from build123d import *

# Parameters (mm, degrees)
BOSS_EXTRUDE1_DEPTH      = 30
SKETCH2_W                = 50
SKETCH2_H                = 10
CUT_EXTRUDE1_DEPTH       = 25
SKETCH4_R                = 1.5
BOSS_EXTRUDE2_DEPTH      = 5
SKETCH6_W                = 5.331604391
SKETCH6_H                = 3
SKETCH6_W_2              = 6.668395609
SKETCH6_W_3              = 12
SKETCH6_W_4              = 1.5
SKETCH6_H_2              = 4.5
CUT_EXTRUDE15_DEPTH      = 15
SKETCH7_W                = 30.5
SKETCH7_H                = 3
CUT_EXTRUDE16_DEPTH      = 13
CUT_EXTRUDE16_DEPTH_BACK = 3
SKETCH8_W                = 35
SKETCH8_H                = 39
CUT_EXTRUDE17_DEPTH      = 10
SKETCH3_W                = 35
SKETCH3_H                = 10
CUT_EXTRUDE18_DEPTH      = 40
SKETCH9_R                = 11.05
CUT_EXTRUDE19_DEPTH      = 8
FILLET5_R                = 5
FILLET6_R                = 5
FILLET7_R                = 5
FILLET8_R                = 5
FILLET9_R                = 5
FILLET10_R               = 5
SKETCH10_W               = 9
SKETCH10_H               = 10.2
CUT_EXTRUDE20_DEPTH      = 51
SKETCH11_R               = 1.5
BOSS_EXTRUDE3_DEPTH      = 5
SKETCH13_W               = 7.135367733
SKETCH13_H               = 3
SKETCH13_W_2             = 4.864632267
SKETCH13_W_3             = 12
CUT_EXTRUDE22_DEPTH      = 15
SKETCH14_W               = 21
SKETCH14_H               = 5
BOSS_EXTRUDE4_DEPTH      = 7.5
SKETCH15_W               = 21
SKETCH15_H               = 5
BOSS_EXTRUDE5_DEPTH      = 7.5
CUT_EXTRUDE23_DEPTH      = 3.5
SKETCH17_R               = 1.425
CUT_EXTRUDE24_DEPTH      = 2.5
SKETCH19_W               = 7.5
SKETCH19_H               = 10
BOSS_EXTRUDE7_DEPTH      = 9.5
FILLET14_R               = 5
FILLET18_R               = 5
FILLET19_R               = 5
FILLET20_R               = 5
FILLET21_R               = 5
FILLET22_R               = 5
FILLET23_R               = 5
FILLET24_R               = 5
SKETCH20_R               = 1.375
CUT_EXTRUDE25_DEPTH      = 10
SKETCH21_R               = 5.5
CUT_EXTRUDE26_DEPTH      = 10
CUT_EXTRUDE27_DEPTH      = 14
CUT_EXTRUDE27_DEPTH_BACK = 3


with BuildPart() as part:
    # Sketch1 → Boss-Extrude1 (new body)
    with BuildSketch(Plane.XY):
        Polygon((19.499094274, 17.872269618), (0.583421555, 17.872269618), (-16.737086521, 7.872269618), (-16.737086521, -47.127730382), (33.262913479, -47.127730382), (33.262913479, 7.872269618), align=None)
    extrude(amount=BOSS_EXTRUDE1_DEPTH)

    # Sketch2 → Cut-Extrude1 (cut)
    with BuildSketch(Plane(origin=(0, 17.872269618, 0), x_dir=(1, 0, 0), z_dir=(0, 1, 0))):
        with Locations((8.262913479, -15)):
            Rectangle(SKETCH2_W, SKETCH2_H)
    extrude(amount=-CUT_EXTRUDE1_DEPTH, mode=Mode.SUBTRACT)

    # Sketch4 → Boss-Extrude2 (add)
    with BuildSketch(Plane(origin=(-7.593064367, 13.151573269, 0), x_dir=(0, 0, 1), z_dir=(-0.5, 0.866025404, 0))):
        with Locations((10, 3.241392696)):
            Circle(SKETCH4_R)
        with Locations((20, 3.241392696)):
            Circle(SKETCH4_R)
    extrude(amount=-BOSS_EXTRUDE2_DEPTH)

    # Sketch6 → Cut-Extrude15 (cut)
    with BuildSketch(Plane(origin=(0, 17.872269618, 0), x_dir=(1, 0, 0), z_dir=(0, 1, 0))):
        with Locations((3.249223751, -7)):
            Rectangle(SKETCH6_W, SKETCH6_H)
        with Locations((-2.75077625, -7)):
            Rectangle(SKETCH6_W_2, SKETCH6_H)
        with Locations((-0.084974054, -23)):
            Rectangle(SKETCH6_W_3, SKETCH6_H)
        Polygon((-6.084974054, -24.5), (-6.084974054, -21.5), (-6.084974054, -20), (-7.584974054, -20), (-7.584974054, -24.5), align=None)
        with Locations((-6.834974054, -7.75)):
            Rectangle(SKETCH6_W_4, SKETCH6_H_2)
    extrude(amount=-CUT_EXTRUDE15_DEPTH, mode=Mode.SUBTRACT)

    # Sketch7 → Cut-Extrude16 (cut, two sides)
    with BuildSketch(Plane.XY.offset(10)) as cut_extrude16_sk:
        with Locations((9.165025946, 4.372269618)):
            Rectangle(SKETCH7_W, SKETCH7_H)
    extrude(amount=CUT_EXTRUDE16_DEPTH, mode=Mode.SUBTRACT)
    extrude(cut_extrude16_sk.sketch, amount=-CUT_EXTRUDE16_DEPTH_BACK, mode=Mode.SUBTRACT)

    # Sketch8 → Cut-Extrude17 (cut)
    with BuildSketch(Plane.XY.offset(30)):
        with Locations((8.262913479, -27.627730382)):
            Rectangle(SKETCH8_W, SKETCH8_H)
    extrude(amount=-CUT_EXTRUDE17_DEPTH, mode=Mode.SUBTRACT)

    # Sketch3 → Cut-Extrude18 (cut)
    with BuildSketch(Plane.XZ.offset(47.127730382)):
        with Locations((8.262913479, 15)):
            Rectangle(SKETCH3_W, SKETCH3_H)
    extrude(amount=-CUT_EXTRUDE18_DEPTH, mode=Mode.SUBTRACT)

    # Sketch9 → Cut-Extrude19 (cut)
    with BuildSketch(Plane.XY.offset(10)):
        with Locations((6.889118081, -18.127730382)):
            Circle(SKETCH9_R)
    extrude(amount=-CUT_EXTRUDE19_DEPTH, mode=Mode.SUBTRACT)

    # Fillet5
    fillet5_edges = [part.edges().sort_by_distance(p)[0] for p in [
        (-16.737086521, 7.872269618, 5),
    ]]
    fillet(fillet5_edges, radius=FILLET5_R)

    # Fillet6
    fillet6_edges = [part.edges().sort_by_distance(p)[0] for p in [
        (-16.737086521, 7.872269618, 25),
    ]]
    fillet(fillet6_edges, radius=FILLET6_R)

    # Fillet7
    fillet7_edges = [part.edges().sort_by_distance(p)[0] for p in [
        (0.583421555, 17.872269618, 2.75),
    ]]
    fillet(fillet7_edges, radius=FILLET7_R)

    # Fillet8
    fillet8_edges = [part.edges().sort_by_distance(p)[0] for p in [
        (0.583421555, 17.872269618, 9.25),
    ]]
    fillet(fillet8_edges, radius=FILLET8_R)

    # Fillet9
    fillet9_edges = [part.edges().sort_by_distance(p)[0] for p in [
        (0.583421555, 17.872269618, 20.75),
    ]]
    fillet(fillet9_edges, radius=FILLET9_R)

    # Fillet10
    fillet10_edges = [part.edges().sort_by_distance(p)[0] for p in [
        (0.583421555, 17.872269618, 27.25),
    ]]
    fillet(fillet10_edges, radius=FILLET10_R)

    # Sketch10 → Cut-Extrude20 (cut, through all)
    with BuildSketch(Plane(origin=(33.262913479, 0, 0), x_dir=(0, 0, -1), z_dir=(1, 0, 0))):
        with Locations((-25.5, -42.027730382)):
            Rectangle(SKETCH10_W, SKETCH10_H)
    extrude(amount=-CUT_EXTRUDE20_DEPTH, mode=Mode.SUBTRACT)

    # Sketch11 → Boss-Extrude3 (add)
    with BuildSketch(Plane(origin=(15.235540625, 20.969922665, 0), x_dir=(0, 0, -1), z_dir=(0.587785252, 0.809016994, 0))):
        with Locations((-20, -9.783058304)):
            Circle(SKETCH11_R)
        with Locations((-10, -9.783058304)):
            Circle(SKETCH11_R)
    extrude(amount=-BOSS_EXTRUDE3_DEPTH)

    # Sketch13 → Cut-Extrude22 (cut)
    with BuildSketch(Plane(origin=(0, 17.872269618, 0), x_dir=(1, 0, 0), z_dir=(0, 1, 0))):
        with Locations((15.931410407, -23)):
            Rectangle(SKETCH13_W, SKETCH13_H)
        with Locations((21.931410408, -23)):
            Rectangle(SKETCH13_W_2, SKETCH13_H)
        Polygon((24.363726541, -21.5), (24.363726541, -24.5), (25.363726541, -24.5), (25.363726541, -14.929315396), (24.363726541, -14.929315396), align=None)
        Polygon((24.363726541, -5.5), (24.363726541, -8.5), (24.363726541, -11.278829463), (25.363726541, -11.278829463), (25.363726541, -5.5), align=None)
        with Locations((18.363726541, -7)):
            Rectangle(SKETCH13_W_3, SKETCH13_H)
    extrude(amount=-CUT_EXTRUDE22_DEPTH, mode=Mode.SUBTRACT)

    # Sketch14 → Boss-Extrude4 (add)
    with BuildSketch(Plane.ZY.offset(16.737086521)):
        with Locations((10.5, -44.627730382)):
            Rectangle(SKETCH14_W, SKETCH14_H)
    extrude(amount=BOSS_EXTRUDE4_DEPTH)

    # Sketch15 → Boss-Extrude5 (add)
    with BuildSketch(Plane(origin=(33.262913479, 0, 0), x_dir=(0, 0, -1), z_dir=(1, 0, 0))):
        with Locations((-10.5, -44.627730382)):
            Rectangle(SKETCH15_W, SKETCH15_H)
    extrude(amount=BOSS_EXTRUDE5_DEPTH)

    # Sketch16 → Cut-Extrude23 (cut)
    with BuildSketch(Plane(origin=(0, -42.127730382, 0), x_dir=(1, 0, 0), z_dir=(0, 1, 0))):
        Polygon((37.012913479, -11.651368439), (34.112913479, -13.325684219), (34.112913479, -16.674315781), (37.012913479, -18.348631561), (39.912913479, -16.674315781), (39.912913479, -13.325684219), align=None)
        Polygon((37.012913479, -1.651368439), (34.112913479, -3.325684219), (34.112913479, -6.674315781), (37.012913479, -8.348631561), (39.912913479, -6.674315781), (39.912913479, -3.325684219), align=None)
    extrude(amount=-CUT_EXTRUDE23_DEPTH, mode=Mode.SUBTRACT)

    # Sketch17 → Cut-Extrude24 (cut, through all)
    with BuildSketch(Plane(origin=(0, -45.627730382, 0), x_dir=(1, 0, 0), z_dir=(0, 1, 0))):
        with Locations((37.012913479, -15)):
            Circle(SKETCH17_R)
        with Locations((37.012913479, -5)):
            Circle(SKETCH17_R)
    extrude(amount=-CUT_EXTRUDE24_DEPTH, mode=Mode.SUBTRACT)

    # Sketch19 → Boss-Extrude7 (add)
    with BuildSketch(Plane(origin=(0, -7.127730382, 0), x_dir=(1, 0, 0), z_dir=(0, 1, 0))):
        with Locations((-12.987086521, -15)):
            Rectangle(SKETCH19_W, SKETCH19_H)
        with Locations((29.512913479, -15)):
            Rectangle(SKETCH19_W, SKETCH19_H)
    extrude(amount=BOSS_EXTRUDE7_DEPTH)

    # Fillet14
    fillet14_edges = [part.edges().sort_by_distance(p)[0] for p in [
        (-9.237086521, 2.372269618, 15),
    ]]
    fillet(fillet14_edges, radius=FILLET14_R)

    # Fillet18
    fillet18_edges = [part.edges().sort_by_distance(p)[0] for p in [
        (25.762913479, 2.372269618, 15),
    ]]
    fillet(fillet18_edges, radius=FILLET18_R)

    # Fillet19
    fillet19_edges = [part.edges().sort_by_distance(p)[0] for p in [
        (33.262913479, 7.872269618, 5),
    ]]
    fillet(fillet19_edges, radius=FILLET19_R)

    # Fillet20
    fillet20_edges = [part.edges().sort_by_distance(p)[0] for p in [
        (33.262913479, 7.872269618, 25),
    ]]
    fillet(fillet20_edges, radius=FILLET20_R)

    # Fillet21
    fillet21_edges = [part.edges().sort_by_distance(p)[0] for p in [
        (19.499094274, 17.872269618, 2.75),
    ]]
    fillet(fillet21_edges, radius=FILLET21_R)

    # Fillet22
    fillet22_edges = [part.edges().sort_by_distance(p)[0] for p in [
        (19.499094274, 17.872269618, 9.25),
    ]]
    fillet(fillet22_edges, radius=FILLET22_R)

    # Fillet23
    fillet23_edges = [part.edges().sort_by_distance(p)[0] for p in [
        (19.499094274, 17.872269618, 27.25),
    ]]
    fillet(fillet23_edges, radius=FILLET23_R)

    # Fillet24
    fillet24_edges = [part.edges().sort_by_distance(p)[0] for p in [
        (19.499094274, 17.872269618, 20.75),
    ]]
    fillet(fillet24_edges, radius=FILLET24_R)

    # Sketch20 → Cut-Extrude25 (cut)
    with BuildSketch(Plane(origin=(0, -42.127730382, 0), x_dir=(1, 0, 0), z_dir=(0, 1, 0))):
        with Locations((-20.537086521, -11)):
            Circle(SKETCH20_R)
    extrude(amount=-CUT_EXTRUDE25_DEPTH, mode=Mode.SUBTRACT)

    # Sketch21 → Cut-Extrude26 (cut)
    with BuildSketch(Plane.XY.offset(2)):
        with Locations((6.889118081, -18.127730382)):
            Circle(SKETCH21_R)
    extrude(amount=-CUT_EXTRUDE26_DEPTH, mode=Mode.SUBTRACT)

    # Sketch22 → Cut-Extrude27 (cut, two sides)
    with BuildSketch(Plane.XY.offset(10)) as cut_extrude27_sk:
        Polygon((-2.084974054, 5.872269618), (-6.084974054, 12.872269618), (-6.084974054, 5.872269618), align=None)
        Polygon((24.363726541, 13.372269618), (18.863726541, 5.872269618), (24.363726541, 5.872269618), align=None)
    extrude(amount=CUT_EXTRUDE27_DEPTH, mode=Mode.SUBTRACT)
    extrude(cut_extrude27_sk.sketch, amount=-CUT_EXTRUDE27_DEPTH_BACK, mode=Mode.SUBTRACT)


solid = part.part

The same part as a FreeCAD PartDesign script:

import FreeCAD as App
import Part
import Sketcher
from FreeCAD import Vector
Q = App.Units.Quantity


def edges_at(feature, points):
    """Names of the edges that pass closest to the given points."""
    edges = feature.Shape.Edges
    near = lambda p: min(range(len(edges)), key=lambda i: edges[i].distToShape(Part.Vertex(*p))[0])
    return sorted({f"Edge{near(p) + 1}" for p in points})

doc = App.newDocument("Part")
body = doc.addObject("PartDesign::Body", "Body")

# Sketch on XY plane
sketch1 = body.newObject("Sketcher::SketchObject", "Sketch")
sketch1.AttachmentSupport = (doc.getObject("XY_Plane"), [""])
sketch1.MapMode = "FlatFace"
sketch1.addGeometry(Part.LineSegment(Vector(19, 18, 0), Vector(1, 18, 0)), False)
sketch1.addGeometry(Part.LineSegment(Vector(1, 18, 0), Vector(-17, 8, 0)), False)
sketch1.addGeometry(Part.LineSegment(Vector(-17, 8, 0), Vector(-17, -47, 0)), False)
sketch1.addGeometry(Part.LineSegment(Vector(-17, -47, 0), Vector(33, -47, 0)), False)
sketch1.addGeometry(Part.LineSegment(Vector(33, -47, 0), Vector(33, 8, 0)), False)
sketch1.addGeometry(Part.LineSegment(Vector(33, 8, 0), Vector(19, 18, 0)), False)
sketch1.addConstraint(Sketcher.Constraint("Coincident", 0, 2, 1, 1))
sketch1.addConstraint(Sketcher.Constraint("Coincident", 1, 2, 2, 1))
sketch1.addConstraint(Sketcher.Constraint("Coincident", 2, 2, 3, 1))
sketch1.addConstraint(Sketcher.Constraint("Coincident", 3, 2, 4, 1))
sketch1.addConstraint(Sketcher.Constraint("Coincident", 4, 2, 5, 1))
sketch1.addConstraint(Sketcher.Constraint("Coincident", 5, 2, 0, 1))
sketch1.addConstraint(Sketcher.Constraint("Horizontal", 0))
sketch1.addConstraint(Sketcher.Constraint("Vertical", 2))
sketch1.addConstraint(Sketcher.Constraint("Horizontal", 3))
sketch1.addConstraint(Sketcher.Constraint("Vertical", 4))
sketch1.addConstraint(Sketcher.Constraint("Horizontal", 1, 2, 4, 2))
sketch1.addConstraint(Sketcher.Constraint("DistanceX", 3, 1, 3, 2, Q("50 mm")))
sketch1.addConstraint(Sketcher.Constraint("DistanceY", 2, 2, 2, 1, Q("55 mm")))
sketch1.addConstraint(Sketcher.Constraint("Angle", 1, Q("-150 deg")))
sketch1.addConstraint(Sketcher.Constraint("Angle", 5, Q("144 deg")))
sketch1.addConstraint(Sketcher.Constraint("Distance", 1, Q("20 mm")))
sketch1.addConstraint(Sketcher.Constraint("DistanceX", -1, 1, 0, 2, Q("0.583422 mm")))
sketch1.addConstraint(Sketcher.Constraint("DistanceY", -1, 1, 0, 2, Q("17.87227 mm")))
pad1 = body.newObject("PartDesign::Pad", "Pad")
pad1.Profile = sketch1
pad1.Length = 30

# Sketch on XZ plane
sketch2 = body.newObject("Sketcher::SketchObject", "Sketch001")
sketch2.AttachmentSupport = (doc.getObject("XZ_Plane"), [""])
sketch2.MapMode = "FlatFace"
sketch2.AttachmentOffset = App.Placement(Vector(0, 0, -17.87227), App.Rotation())
sketch2.addGeometry(Part.LineSegment(Vector(-17, 10, 0), Vector(-17, 20, 0)), False)
sketch2.addGeometry(Part.LineSegment(Vector(-17, 20, 0), Vector(33, 20, 0)), False)
sketch2.addGeometry(Part.LineSegment(Vector(33, 20, 0), Vector(33, 10, 0)), False)
sketch2.addGeometry(Part.LineSegment(Vector(33, 10, 0), Vector(-17, 10, 0)), False)
sketch2.addConstraint(Sketcher.Constraint("Coincident", 0, 2, 1, 1))
sketch2.addConstraint(Sketcher.Constraint("Coincident", 1, 2, 2, 1))
sketch2.addConstraint(Sketcher.Constraint("Coincident", 2, 2, 3, 1))
sketch2.addConstraint(Sketcher.Constraint("Coincident", 3, 2, 0, 1))
sketch2.addConstraint(Sketcher.Constraint("Vertical", 0))
sketch2.addConstraint(Sketcher.Constraint("Horizontal", 1))
sketch2.addConstraint(Sketcher.Constraint("Vertical", 2))
sketch2.addConstraint(Sketcher.Constraint("Horizontal", 3))
sketch2.addConstraint(Sketcher.Constraint("DistanceX", 1, 1, 1, 2, Q("50 mm")))
sketch2.addConstraint(Sketcher.Constraint("DistanceY", 0, 1, 0, 2, Q("10 mm")))
sketch2.addConstraint(Sketcher.Constraint("DistanceY", -1, 1, 0, 2, Q("20 mm")))
sketch2.addConstraint(Sketcher.Constraint("DistanceX", 0, 2, -1, 1, Q("16.737087 mm")))
pocket1 = body.newObject("PartDesign::Pocket", "Pocket")
pocket1.Profile = sketch2
pocket1.Length = 25
pocket1.Reversed = True

# Sketch on an angled plane
sketch3 = body.newObject("Sketcher::SketchObject", "Sketch002")
sketch3.Placement = App.Placement(Vector(-7.593064, 13.151573, 0), App.Rotation(Vector(0, 0, 1), Vector(0.866025404, 0.5, 0), Vector(-0.5, 0.866025404, 0), "ZXY"))
sketch3.addGeometry(Part.Circle(Vector(10, 3.2, 0), Vector(0, 0, 1), 1.5), False)
sketch3.addGeometry(Part.Circle(Vector(20, 3.2, 0), Vector(0, 0, 1), 1.5), False)
sketch3.addConstraint(Sketcher.Constraint("Equal", 0, 1))
sketch3.addConstraint(Sketcher.Constraint("Horizontal", 0, 3, 1, 3))
sketch3.addConstraint(Sketcher.Constraint("Diameter", 0, Q("3 mm")))
sketch3.addConstraint(Sketcher.Constraint("DistanceX", -1, 1, 0, 3, Q("10 mm")))
sketch3.addConstraint(Sketcher.Constraint("DistanceX", -1, 1, 1, 3, Q("20 mm")))
sketch3.addConstraint(Sketcher.Constraint("DistanceY", -1, 1, 0, 3, Q("3.241393 mm")))
pad2 = body.newObject("PartDesign::Pad", "Pad001")
pad2.Profile = sketch3
pad2.Length = 5
pad2.Reversed = True

# Sketch on XZ plane
sketch4 = body.newObject("Sketcher::SketchObject", "Sketch003")
sketch4.AttachmentSupport = (doc.getObject("XZ_Plane"), [""])
sketch4.MapMode = "FlatFace"
sketch4.AttachmentOffset = App.Placement(Vector(0, 0, -17.87227), App.Rotation())
sketch4.addGeometry(Part.LineSegment(Vector(5.9, 8.5, 0), Vector(5.9, 5.5, 0)), False)
sketch4.addGeometry(Part.LineSegment(Vector(5.9, 5.5, 0), Vector(-7.6, 5.5, 0)), False)
sketch4.addGeometry(Part.LineSegment(Vector(-7.6, 5.5, 0), Vector(-7.6, 10, 0)), False)
sketch4.addGeometry(Part.LineSegment(Vector(-7.6, 10, 0), Vector(-6.1, 10, 0)), False)
sketch4.addGeometry(Part.LineSegment(Vector(-6.1, 10, 0), Vector(-6.1, 8.5, 0)), False)
sketch4.addGeometry(Part.LineSegment(Vector(-6.1, 8.5, 0), Vector(5.9, 8.5, 0)), False)
sketch4.addGeometry(Part.LineSegment(Vector(5.9, 24.5, 0), Vector(5.9, 21.5, 0)), False)
sketch4.addGeometry(Part.LineSegment(Vector(5.9, 21.5, 0), Vector(-6.1, 21.5, 0)), False)
sketch4.addGeometry(Part.LineSegment(Vector(-6.1, 21.5, 0), Vector(-6.1, 20, 0)), False)
sketch4.addGeometry(Part.LineSegment(Vector(-6.1, 20, 0), Vector(-7.6, 20, 0)), False)
sketch4.addGeometry(Part.LineSegment(Vector(-7.6, 20, 0), Vector(-7.6, 24.5, 0)), False)
sketch4.addGeometry(Part.LineSegment(Vector(-7.6, 24.5, 0), Vector(5.9, 24.5, 0)), False)
sketch4.addConstraint(Sketcher.Constraint("Coincident", 0, 2, 1, 1))
sketch4.addConstraint(Sketcher.Constraint("Coincident", 1, 2, 2, 1))
sketch4.addConstraint(Sketcher.Constraint("Coincident", 2, 2, 3, 1))
sketch4.addConstraint(Sketcher.Constraint("Coincident", 3, 2, 4, 1))
sketch4.addConstraint(Sketcher.Constraint("Coincident", 4, 2, 5, 1))
sketch4.addConstraint(Sketcher.Constraint("Coincident", 5, 2, 0, 1))
sketch4.addConstraint(Sketcher.Constraint("Coincident", 6, 2, 7, 1))
sketch4.addConstraint(Sketcher.Constraint("Coincident", 7, 2, 8, 1))
sketch4.addConstraint(Sketcher.Constraint("Coincident", 8, 2, 9, 1))
sketch4.addConstraint(Sketcher.Constraint("Coincident", 9, 2, 10, 1))
sketch4.addConstraint(Sketcher.Constraint("Coincident", 10, 2, 11, 1))
sketch4.addConstraint(Sketcher.Constraint("Coincident", 11, 2, 6, 1))
sketch4.addConstraint(Sketcher.Constraint("Vertical", 0))
sketch4.addConstraint(Sketcher.Constraint("Horizontal", 1))
sketch4.addConstraint(Sketcher.Constraint("Vertical", 2))
sketch4.addConstraint(Sketcher.Constraint("Horizontal", 3))
sketch4.addConstraint(Sketcher.Constraint("Vertical", 4))
sketch4.addConstraint(Sketcher.Constraint("Horizontal", 5))
sketch4.addConstraint(Sketcher.Constraint("Vertical", 6))
sketch4.addConstraint(Sketcher.Constraint("Horizontal", 7))
sketch4.addConstraint(Sketcher.Constraint("Vertical", 8))
sketch4.addConstraint(Sketcher.Constraint("Horizontal", 9))
sketch4.addConstraint(Sketcher.Constraint("Vertical", 10))
sketch4.addConstraint(Sketcher.Constraint("Horizontal", 11))
sketch4.addConstraint(Sketcher.Constraint("Vertical", 5, 2, 6, 2))
sketch4.addConstraint(Sketcher.Constraint("Vertical", 4, 2, 7, 2))
sketch4.addConstraint(Sketcher.Constraint("Vertical", 2, 2, 9, 2))
sketch4.addConstraint(Sketcher.Constraint("Equal", 9, 4))
sketch4.addConstraint(Sketcher.Constraint("Equal", 0, 6))
sketch4.addConstraint(Sketcher.Constraint("Equal", 4, 8))
sketch4.addConstraint(Sketcher.Constraint("DistanceX", 5, 1, 5, 2, Q("12 mm")))
sketch4.addConstraint(Sketcher.Constraint("DistanceY", 0, 2, 0, 1, Q("3 mm")))
sketch4.addConstraint(Sketcher.Constraint("DistanceX", 1, 2, 1, 1, Q("13.5 mm")))
sketch4.addConstraint(Sketcher.Constraint("DistanceY", -1, 1, 2, 2, Q("10 mm")))
sketch4.addConstraint(Sketcher.Constraint("DistanceY", -1, 1, 8, 2, Q("20 mm")))
sketch4.addConstraint(Sketcher.Constraint("DistanceX", -1, 1, 0, 2, Q("5.915026 mm")))
pocket2 = body.newObject("PartDesign::Pocket", "Pocket001")
pocket2.Profile = sketch4
pocket2.Length = 15
pocket2.Reversed = True

# Sketch on XY plane
sketch5 = body.newObject("Sketcher::SketchObject", "Sketch004")
sketch5.AttachmentSupport = (doc.getObject("XY_Plane"), [""])
sketch5.MapMode = "FlatFace"
sketch5.AttachmentOffset = App.Placement(Vector(0, 0, 10), App.Rotation())
sketch5.addGeometry(Part.LineSegment(Vector(-6.1, 5.9, 0), Vector(-6.1, 2.9, 0)), False)
sketch5.addGeometry(Part.LineSegment(Vector(-6.1, 2.9, 0), Vector(24.4, 2.9, 0)), False)
sketch5.addGeometry(Part.LineSegment(Vector(24.4, 2.9, 0), Vector(24.4, 5.9, 0)), False)
sketch5.addGeometry(Part.LineSegment(Vector(24.4, 5.9, 0), Vector(-6.1, 5.9, 0)), False)
sketch5.addConstraint(Sketcher.Constraint("Coincident", 0, 2, 1, 1))
sketch5.addConstraint(Sketcher.Constraint("Coincident", 1, 2, 2, 1))
sketch5.addConstraint(Sketcher.Constraint("Coincident", 2, 2, 3, 1))
sketch5.addConstraint(Sketcher.Constraint("Coincident", 3, 2, 0, 1))
sketch5.addConstraint(Sketcher.Constraint("Vertical", 0))
sketch5.addConstraint(Sketcher.Constraint("Horizontal", 1))
sketch5.addConstraint(Sketcher.Constraint("Vertical", 2))
sketch5.addConstraint(Sketcher.Constraint("Horizontal", 3))
sketch5.addConstraint(Sketcher.Constraint("DistanceY", 0, 2, 0, 1, Q("3 mm")))
sketch5.addConstraint(Sketcher.Constraint("DistanceX", 1, 1, 1, 2, Q("30.5 mm")))
sketch5.addConstraint(Sketcher.Constraint("DistanceY", -1, 1, 0, 2, Q("2.87227 mm")))
sketch5.addConstraint(Sketcher.Constraint("DistanceX", 0, 2, -1, 1, Q("6.084974 mm")))
pocket3 = body.newObject("PartDesign::Pocket", "Pocket002")
pocket3.Profile = sketch5
pocket3.Type = "TwoLengths"
pocket3.Length = 13
pocket3.Length2 = 3
pocket3.Reversed = True

# Sketch on XY plane
sketch6 = body.newObject("Sketcher::SketchObject", "Sketch005")
sketch6.AttachmentSupport = (doc.getObject("XY_Plane"), [""])
sketch6.MapMode = "FlatFace"
sketch6.AttachmentOffset = App.Placement(Vector(0, 0, 30), App.Rotation())
sketch6.addGeometry(Part.LineSegment(Vector(-9, -8, 0), Vector(-9, -47, 0)), False)
sketch6.addGeometry(Part.LineSegment(Vector(-9, -47, 0), Vector(26, -47, 0)), False)
sketch6.addGeometry(Part.LineSegment(Vector(26, -47, 0), Vector(26, -8, 0)), False)
sketch6.addGeometry(Part.LineSegment(Vector(26, -8, 0), Vector(-9, -8, 0)), False)
sketch6.addConstraint(Sketcher.Constraint("Coincident", 0, 2, 1, 1))
sketch6.addConstraint(Sketcher.Constraint("Coincident", 1, 2, 2, 1))
sketch6.addConstraint(Sketcher.Constraint("Coincident", 2, 2, 3, 1))
sketch6.addConstraint(Sketcher.Constraint("Coincident", 3, 2, 0, 1))
sketch6.addConstraint(Sketcher.Constraint("Vertical", 0))
sketch6.addConstraint(Sketcher.Constraint("Horizontal", 1))
sketch6.addConstraint(Sketcher.Constraint("Vertical", 2))
sketch6.addConstraint(Sketcher.Constraint("Horizontal", 3))
sketch6.addConstraint(Sketcher.Constraint("DistanceX", 1, 1, 1, 2, Q("35 mm")))
sketch6.addConstraint(Sketcher.Constraint("DistanceY", 0, 2, 0, 1, Q("39 mm")))
sketch6.addConstraint(Sketcher.Constraint("DistanceY", 0, 2, -1, 1, Q("47.12773 mm")))
sketch6.addConstraint(Sketcher.Constraint("DistanceX", 0, 2, -1, 1, Q("9.237087 mm")))
pocket4 = body.newObject("PartDesign::Pocket", "Pocket003")
pocket4.Profile = sketch6
pocket4.Length = 10

# Sketch on XZ plane
sketch7 = body.newObject("Sketcher::SketchObject", "Sketch006")
sketch7.AttachmentSupport = (doc.getObject("XZ_Plane"), [""])
sketch7.MapMode = "FlatFace"
sketch7.AttachmentOffset = App.Placement(Vector(0, 0, 47.12773), App.Rotation())
sketch7.addGeometry(Part.LineSegment(Vector(-9, 20, 0), Vector(-9, 10, 0)), False)
sketch7.addGeometry(Part.LineSegment(Vector(-9, 10, 0), Vector(26, 10, 0)), False)
sketch7.addGeometry(Part.LineSegment(Vector(26, 10, 0), Vector(26, 20, 0)), False)
sketch7.addGeometry(Part.LineSegment(Vector(26, 20, 0), Vector(-9, 20, 0)), False)
sketch7.addConstraint(Sketcher.Constraint("Coincident", 0, 2, 1, 1))
sketch7.addConstraint(Sketcher.Constraint("Coincident", 1, 2, 2, 1))
sketch7.addConstraint(Sketcher.Constraint("Coincident", 2, 2, 3, 1))
sketch7.addConstraint(Sketcher.Constraint("Coincident", 3, 2, 0, 1))
sketch7.addConstraint(Sketcher.Constraint("Vertical", 0))
sketch7.addConstraint(Sketcher.Constraint("Horizontal", 1))
sketch7.addConstraint(Sketcher.Constraint("Vertical", 2))
sketch7.addConstraint(Sketcher.Constraint("Horizontal", 3))
sketch7.addConstraint(Sketcher.Constraint("DistanceX", 1, 1, 1, 2, Q("35 mm")))
sketch7.addConstraint(Sketcher.Constraint("DistanceY", 0, 2, 0, 1, Q("10 mm")))
sketch7.addConstraint(Sketcher.Constraint("DistanceY", -1, 1, 0, 2, Q("10 mm")))
sketch7.addConstraint(Sketcher.Constraint("DistanceX", 0, 2, -1, 1, Q("9.237087 mm")))
pocket5 = body.newObject("PartDesign::Pocket", "Pocket004")
pocket5.Profile = sketch7
pocket5.Length = 40

# Sketch on XY plane
sketch8 = body.newObject("Sketcher::SketchObject", "Sketch007")
sketch8.AttachmentSupport = (doc.getObject("XY_Plane"), [""])
sketch8.MapMode = "FlatFace"
sketch8.AttachmentOffset = App.Placement(Vector(0, 0, 10), App.Rotation())
sketch8.addGeometry(Part.Circle(Vector(7, -18, 0), Vector(0, 0, 1), 11), False)
sketch8.addConstraint(Sketcher.Constraint("Diameter", 0, Q("22.1 mm")))
sketch8.addConstraint(Sketcher.Constraint("DistanceX", -1, 1, 0, 3, Q("6.889118 mm")))
sketch8.addConstraint(Sketcher.Constraint("DistanceY", 0, 3, -1, 1, Q("18.12773 mm")))
pocket6 = body.newObject("PartDesign::Pocket", "Pocket005")
pocket6.Profile = sketch8
pocket6.Length = 8
doc.recompute()

fillet = body.newObject("PartDesign::Fillet", "Fillet")
fillet.Base = (pocket6, edges_at(pocket6, [(-16.737, 7.872, 5)]))
fillet.Radius = 5
doc.recompute()

fillet2 = body.newObject("PartDesign::Fillet", "Fillet001")
fillet2.Base = (fillet, edges_at(fillet, [(-16.737, 7.872, 25)]))
fillet2.Radius = 5
doc.recompute()

fillet3 = body.newObject("PartDesign::Fillet", "Fillet002")
fillet3.Base = (fillet2, edges_at(fillet2, [(0.583, 17.872, 2.75)]))
fillet3.Radius = 5
doc.recompute()

fillet4 = body.newObject("PartDesign::Fillet", "Fillet003")
fillet4.Base = (fillet3, edges_at(fillet3, [(0.583, 17.872, 9.25)]))
fillet4.Radius = 5
doc.recompute()

fillet5 = body.newObject("PartDesign::Fillet", "Fillet004")
fillet5.Base = (fillet4, edges_at(fillet4, [(0.583, 17.872, 20.75)]))
fillet5.Radius = 5
doc.recompute()

fillet6 = body.newObject("PartDesign::Fillet", "Fillet005")
fillet6.Base = (fillet5, edges_at(fillet5, [(0.583, 17.872, 27.25)]))
fillet6.Radius = 5

# Sketch on YZ plane
sketch9 = body.newObject("Sketcher::SketchObject", "Sketch008")
sketch9.AttachmentSupport = (doc.getObject("YZ_Plane"), [""])
sketch9.MapMode = "FlatFace"
sketch9.AttachmentOffset = App.Placement(Vector(0, 0, 33.262913), App.Rotation())
sketch9.addGeometry(Part.LineSegment(Vector(-37, 30, 0), Vector(-47, 30, 0)), False)
sketch9.addGeometry(Part.LineSegment(Vector(-47, 30, 0), Vector(-47, 21, 0)), False)
sketch9.addGeometry(Part.LineSegment(Vector(-47, 21, 0), Vector(-37, 21, 0)), False)
sketch9.addGeometry(Part.LineSegment(Vector(-37, 21, 0), Vector(-37, 30, 0)), False)
sketch9.addConstraint(Sketcher.Constraint("Coincident", 0, 2, 1, 1))
sketch9.addConstraint(Sketcher.Constraint("Coincident", 1, 2, 2, 1))
sketch9.addConstraint(Sketcher.Constraint("Coincident", 2, 2, 3, 1))
sketch9.addConstraint(Sketcher.Constraint("Coincident", 3, 2, 0, 1))
sketch9.addConstraint(Sketcher.Constraint("Horizontal", 0))
sketch9.addConstraint(Sketcher.Constraint("Vertical", 1))
sketch9.addConstraint(Sketcher.Constraint("Horizontal", 2))
sketch9.addConstraint(Sketcher.Constraint("Vertical", 3))
sketch9.addConstraint(Sketcher.Constraint("DistanceY", 1, 2, 1, 1, Q("9 mm")))
sketch9.addConstraint(Sketcher.Constraint("DistanceX", 0, 2, 0, 1, Q("10.2 mm")))
sketch9.addConstraint(Sketcher.Constraint("DistanceY", -1, 1, 0, 2, Q("30 mm")))
sketch9.addConstraint(Sketcher.Constraint("DistanceX", 0, 2, -1, 1, Q("47.12773 mm")))
pocket7 = body.newObject("PartDesign::Pocket", "Pocket006")
pocket7.Profile = sketch9
pocket7.Type = "ThroughAll"

# Sketch on an angled plane
sketch10 = body.newObject("Sketcher::SketchObject", "Sketch009")
sketch10.Placement = App.Placement(Vector(15.235541, 20.969923, 0), App.Rotation(Vector(0, 0, -1), Vector(-0.809016994, 0.587785252, 0), Vector(0.587785252, 0.809016994, 0), "ZXY"))
sketch10.addGeometry(Part.Circle(Vector(-20, -9.8, 0), Vector(0, 0, 1), 1.5), False)
sketch10.addGeometry(Part.Circle(Vector(-10, -9.8, 0), Vector(0, 0, 1), 1.5), False)
sketch10.addConstraint(Sketcher.Constraint("Equal", 0, 1))
sketch10.addConstraint(Sketcher.Constraint("Horizontal", 0, 3, 1, 3))
sketch10.addConstraint(Sketcher.Constraint("Diameter", 0, Q("3 mm")))
sketch10.addConstraint(Sketcher.Constraint("DistanceX", 0, 3, -1, 1, Q("20 mm")))
sketch10.addConstraint(Sketcher.Constraint("DistanceX", 1, 3, -1, 1, Q("10 mm")))
sketch10.addConstraint(Sketcher.Constraint("DistanceY", 0, 3, -1, 1, Q("9.783058 mm")))
pad3 = body.newObject("PartDesign::Pad", "Pad002")
pad3.Profile = sketch10
pad3.Length = 5
pad3.Reversed = True

# Sketch on XZ plane
sketch11 = body.newObject("Sketcher::SketchObject", "Sketch010")
sketch11.AttachmentSupport = (doc.getObject("XZ_Plane"), [""])
sketch11.MapMode = "FlatFace"
sketch11.AttachmentOffset = App.Placement(Vector(0, 0, -17.87227), App.Rotation())
sketch11.addGeometry(Part.LineSegment(Vector(12.4, 21.5, 0), Vector(12.4, 24.5, 0)), False)
sketch11.addGeometry(Part.LineSegment(Vector(12.4, 24.5, 0), Vector(25.4, 24.5, 0)), False)
sketch11.addGeometry(Part.LineSegment(Vector(25.4, 24.5, 0), Vector(25.4, 14.9, 0)), False)
sketch11.addGeometry(Part.LineSegment(Vector(25.4, 14.9, 0), Vector(24.4, 14.9, 0)), False)
sketch11.addGeometry(Part.LineSegment(Vector(24.4, 14.9, 0), Vector(24.4, 21.5, 0)), False)
sketch11.addGeometry(Part.LineSegment(Vector(24.4, 21.5, 0), Vector(12.4, 21.5, 0)), False)
sketch11.addGeometry(Part.LineSegment(Vector(24.4, 8.5, 0), Vector(24.4, 11.3, 0)), False)
sketch11.addGeometry(Part.LineSegment(Vector(24.4, 11.3, 0), Vector(25.4, 11.3, 0)), False)
sketch11.addGeometry(Part.LineSegment(Vector(25.4, 11.3, 0), Vector(25.4, 5.5, 0)), False)
sketch11.addGeometry(Part.LineSegment(Vector(25.4, 5.5, 0), Vector(12.4, 5.5, 0)), False)
sketch11.addGeometry(Part.LineSegment(Vector(12.4, 5.5, 0), Vector(12.4, 8.5, 0)), False)
sketch11.addGeometry(Part.LineSegment(Vector(12.4, 8.5, 0), Vector(24.4, 8.5, 0)), False)
sketch11.addConstraint(Sketcher.Constraint("Coincident", 0, 2, 1, 1))
sketch11.addConstraint(Sketcher.Constraint("Coincident", 1, 2, 2, 1))
sketch11.addConstraint(Sketcher.Constraint("Coincident", 2, 2, 3, 1))
sketch11.addConstraint(Sketcher.Constraint("Coincident", 3, 2, 4, 1))
sketch11.addConstraint(Sketcher.Constraint("Coincident", 4, 2, 5, 1))
sketch11.addConstraint(Sketcher.Constraint("Coincident", 5, 2, 0, 1))
sketch11.addConstraint(Sketcher.Constraint("Coincident", 6, 2, 7, 1))
sketch11.addConstraint(Sketcher.Constraint("Coincident", 7, 2, 8, 1))
sketch11.addConstraint(Sketcher.Constraint("Coincident", 8, 2, 9, 1))
sketch11.addConstraint(Sketcher.Constraint("Coincident", 9, 2, 10, 1))
sketch11.addConstraint(Sketcher.Constraint("Coincident", 10, 2, 11, 1))
sketch11.addConstraint(Sketcher.Constraint("Coincident", 11, 2, 6, 1))
sketch11.addConstraint(Sketcher.Constraint("Vertical", 0))
sketch11.addConstraint(Sketcher.Constraint("Horizontal", 1))
sketch11.addConstraint(Sketcher.Constraint("Vertical", 2))
sketch11.addConstraint(Sketcher.Constraint("Horizontal", 3))
sketch11.addConstraint(Sketcher.Constraint("Vertical", 4))
sketch11.addConstraint(Sketcher.Constraint("Horizontal", 5))
sketch11.addConstraint(Sketcher.Constraint("Vertical", 6))
sketch11.addConstraint(Sketcher.Constraint("Horizontal", 7))
sketch11.addConstraint(Sketcher.Constraint("Vertical", 8))
sketch11.addConstraint(Sketcher.Constraint("Horizontal", 9))
sketch11.addConstraint(Sketcher.Constraint("Vertical", 10))
sketch11.addConstraint(Sketcher.Constraint("Horizontal", 11))
sketch11.addConstraint(Sketcher.Constraint("Vertical", 4, 2, 6, 2))
sketch11.addConstraint(Sketcher.Constraint("Vertical", 2, 2, 7, 2))
sketch11.addConstraint(Sketcher.Constraint("Vertical", 5, 2, 9, 2))
sketch11.addConstraint(Sketcher.Constraint("Equal", 0, 10))
sketch11.addConstraint(Sketcher.Constraint("DistanceX", 1, 1, 1, 2, Q("13 mm")))
sketch11.addConstraint(Sketcher.Constraint("DistanceX", 3, 2, 3, 1, Q("1 mm")))
sketch11.addConstraint(Sketcher.Constraint("DistanceY", 0, 1, 0, 2, Q("3 mm")))
sketch11.addConstraint(Sketcher.Constraint("DistanceY", 8, 2, 4, 2, Q("16 mm")))
sketch11.addConstraint(Sketcher.Constraint("DistanceY", -1, 1, 0, 2, Q("24.5 mm")))
sketch11.addConstraint(Sketcher.Constraint("DistanceY", 6, 1, 6, 2, Q("2.778829 mm")))
sketch11.addConstraint(Sketcher.Constraint("DistanceY", 2, 2, 2, 1, Q("9.570685 mm")))
sketch11.addConstraint(Sketcher.Constraint("DistanceX", -1, 1, 0, 2, Q("12.363727 mm")))
pocket8 = body.newObject("PartDesign::Pocket", "Pocket007")
pocket8.Profile = sketch11
pocket8.Length = 15
pocket8.Reversed = True

# Sketch on YZ plane
sketch12 = body.newObject("Sketcher::SketchObject", "Sketch011")
sketch12.AttachmentSupport = (doc.getObject("YZ_Plane"), [""])
sketch12.MapMode = "FlatFace"
sketch12.AttachmentOffset = App.Placement(Vector(0, 0, -16.737087), App.Rotation())
sketch12.addGeometry(Part.LineSegment(Vector(-42, 0, 0), Vector(-47, 0, 0)), False)
sketch12.addGeometry(Part.LineSegment(Vector(-47, 0, 0), Vector(-47, 21, 0)), False)
sketch12.addGeometry(Part.LineSegment(Vector(-47, 21, 0), Vector(-42, 21, 0)), False)
sketch12.addGeometry(Part.LineSegment(Vector(-42, 21, 0), Vector(-42, 0, 0)), False)
sketch12.addConstraint(Sketcher.Constraint("Coincident", 0, 2, 1, 1))
sketch12.addConstraint(Sketcher.Constraint("Coincident", 1, 2, 2, 1))
sketch12.addConstraint(Sketcher.Constraint("Coincident", 2, 2, 3, 1))
sketch12.addConstraint(Sketcher.Constraint("Coincident", 3, 2, 0, 1))
sketch12.addConstraint(Sketcher.Constraint("Horizontal", 0))
sketch12.addConstraint(Sketcher.Constraint("Vertical", 1))
sketch12.addConstraint(Sketcher.Constraint("Horizontal", 2))
sketch12.addConstraint(Sketcher.Constraint("Vertical", 3))
sketch12.addConstraint(Sketcher.Constraint("PointOnObject", 0, 2, -1))
sketch12.addConstraint(Sketcher.Constraint("DistanceX", 0, 2, 0, 1, Q("5 mm")))
sketch12.addConstraint(Sketcher.Constraint("DistanceY", 1, 1, 1, 2, Q("21 mm")))
sketch12.addConstraint(Sketcher.Constraint("DistanceX", 0, 2, -1, 1, Q("47.12773 mm")))
pad4 = body.newObject("PartDesign::Pad", "Pad003")
pad4.Profile = sketch12
pad4.Length = 7.5
pad4.Reversed = True

# Sketch on YZ plane
sketch13 = body.newObject("Sketcher::SketchObject", "Sketch012")
sketch13.AttachmentSupport = (doc.getObject("YZ_Plane"), [""])
sketch13.MapMode = "FlatFace"
sketch13.AttachmentOffset = App.Placement(Vector(0, 0, 33.262913), App.Rotation())
sketch13.addGeometry(Part.LineSegment(Vector(-42, 21, 0), Vector(-47, 21, 0)), False)
sketch13.addGeometry(Part.LineSegment(Vector(-47, 21, 0), Vector(-47, 0, 0)), False)
sketch13.addGeometry(Part.LineSegment(Vector(-47, 0, 0), Vector(-42, 0, 0)), False)
sketch13.addGeometry(Part.LineSegment(Vector(-42, 0, 0), Vector(-42, 21, 0)), False)
sketch13.addConstraint(Sketcher.Constraint("Coincident", 0, 2, 1, 1))
sketch13.addConstraint(Sketcher.Constraint("Coincident", 1, 2, 2, 1))
sketch13.addConstraint(Sketcher.Constraint("Coincident", 2, 2, 3, 1))
sketch13.addConstraint(Sketcher.Constraint("Coincident", 3, 2, 0, 1))
sketch13.addConstraint(Sketcher.Constraint("Horizontal", 0))
sketch13.addConstraint(Sketcher.Constraint("Vertical", 1))
sketch13.addConstraint(Sketcher.Constraint("Horizontal", 2))
sketch13.addConstraint(Sketcher.Constraint("Vertical", 3))
sketch13.addConstraint(Sketcher.Constraint("PointOnObject", 1, 2, -1))
sketch13.addConstraint(Sketcher.Constraint("DistanceX", 0, 2, 0, 1, Q("5 mm")))
sketch13.addConstraint(Sketcher.Constraint("DistanceY", 1, 2, 1, 1, Q("21 mm")))
sketch13.addConstraint(Sketcher.Constraint("DistanceX", 0, 2, -1, 1, Q("47.12773 mm")))
pad5 = body.newObject("PartDesign::Pad", "Pad004")
pad5.Profile = sketch13
pad5.Length = 7.5

# Sketch on XZ plane
sketch14 = body.newObject("Sketcher::SketchObject", "Sketch013")
sketch14.AttachmentSupport = (doc.getObject("XZ_Plane"), [""])
sketch14.MapMode = "FlatFace"
sketch14.AttachmentOffset = App.Placement(Vector(0, 0, 42.12773), App.Rotation())
sketch14.addGeometry(Part.LineSegment(Vector(37, 11.7, 0), Vector(34.1, 13.3, 0)), False)
sketch14.addGeometry(Part.LineSegment(Vector(34.1, 13.3, 0), Vector(34.1, 16.7, 0)), False)
sketch14.addGeometry(Part.LineSegment(Vector(34.1, 16.7, 0), Vector(37, 18.3, 0)), False)
sketch14.addGeometry(Part.LineSegment(Vector(37, 18.3, 0), Vector(39.9, 16.7, 0)), False)
sketch14.addGeometry(Part.LineSegment(Vector(39.9, 16.7, 0), Vector(39.9, 13.3, 0)), False)
sketch14.addGeometry(Part.LineSegment(Vector(39.9, 13.3, 0), Vector(37, 11.7, 0)), False)
sketch14.addGeometry(Part.LineSegment(Vector(37, 1.7, 0), Vector(34.1, 3.3, 0)), False)
sketch14.addGeometry(Part.LineSegment(Vector(34.1, 3.3, 0), Vector(34.1, 6.7, 0)), False)
sketch14.addGeometry(Part.LineSegment(Vector(34.1, 6.7, 0), Vector(37, 8.3, 0)), False)
sketch14.addGeometry(Part.LineSegment(Vector(37, 8.3, 0), Vector(39.9, 6.7, 0)), False)
sketch14.addGeometry(Part.LineSegment(Vector(39.9, 6.7, 0), Vector(39.9, 3.3, 0)), False)
sketch14.addGeometry(Part.LineSegment(Vector(39.9, 3.3, 0), Vector(37, 1.7, 0)), False)
sketch14.addConstraint(Sketcher.Constraint("Coincident", 0, 2, 1, 1))
sketch14.addConstraint(Sketcher.Constraint("Coincident", 1, 2, 2, 1))
sketch14.addConstraint(Sketcher.Constraint("Coincident", 2, 2, 3, 1))
sketch14.addConstraint(Sketcher.Constraint("Coincident", 3, 2, 4, 1))
sketch14.addConstraint(Sketcher.Constraint("Coincident", 4, 2, 5, 1))
sketch14.addConstraint(Sketcher.Constraint("Coincident", 5, 2, 0, 1))
sketch14.addConstraint(Sketcher.Constraint("Coincident", 6, 2, 7, 1))
sketch14.addConstraint(Sketcher.Constraint("Coincident", 7, 2, 8, 1))
sketch14.addConstraint(Sketcher.Constraint("Coincident", 8, 2, 9, 1))
sketch14.addConstraint(Sketcher.Constraint("Coincident", 9, 2, 10, 1))
sketch14.addConstraint(Sketcher.Constraint("Coincident", 10, 2, 11, 1))
sketch14.addConstraint(Sketcher.Constraint("Coincident", 11, 2, 6, 1))
sketch14.addConstraint(Sketcher.Constraint("Vertical", 1))
sketch14.addConstraint(Sketcher.Constraint("Vertical", 4))
sketch14.addConstraint(Sketcher.Constraint("Vertical", 7))
sketch14.addConstraint(Sketcher.Constraint("Vertical", 10))
sketch14.addConstraint(Sketcher.Constraint("Parallel", 0, 3))
sketch14.addConstraint(Sketcher.Constraint("Parallel", 2, 5))
sketch14.addConstraint(Sketcher.Constraint("Parallel", 3, 6))
sketch14.addConstraint(Sketcher.Constraint("Parallel", 5, 8))
sketch14.addConstraint(Sketcher.Constraint("Parallel", 6, 9))
sketch14.addConstraint(Sketcher.Constraint("Parallel", 8, 11))
sketch14.addConstraint(Sketcher.Constraint("Horizontal", 1, 2, 3, 2))
sketch14.addConstraint(Sketcher.Constraint("Horizontal", 0, 2, 4, 2))
sketch14.addConstraint(Sketcher.Constraint("Horizontal", 7, 2, 9, 2))
sketch14.addConstraint(Sketcher.Constraint("Horizontal", 6, 2, 10, 2))
sketch14.addConstraint(Sketcher.Constraint("Vertical", 2, 2, 5, 2))
sketch14.addConstraint(Sketcher.Constraint("Vertical", 1, 2, 6, 2))
sketch14.addConstraint(Sketcher.Constraint("Vertical", 5, 2, 8, 2))
sketch14.addConstraint(Sketcher.Constraint("Equal", 4, 7))
sketch14.addConstraint(Sketcher.Constraint("Angle", 0, Q("150 deg")))
sketch14.addConstraint(Sketcher.Constraint("DistanceY", 6, 2, 0, 2, Q("10 mm")))
sketch14.addConstraint(Sketcher.Constraint("DistanceX", 1, 2, 2, 2, Q("2.9 mm")))
sketch14.addConstraint(Sketcher.Constraint("DistanceY", 1, 1, 1, 2, Q("3.348632 mm")))
sketch14.addConstraint(Sketcher.Constraint("DistanceY", -1, 1, 2, 2, Q("18.348632 mm")))
sketch14.addConstraint(Sketcher.Constraint("DistanceX", -1, 1, 0, 2, Q("34.112913 mm")))
pocket9 = body.newObject("PartDesign::Pocket", "Pocket008")
pocket9.Profile = sketch14
pocket9.Length = 3.5
pocket9.Reversed = True

# Sketch on XZ plane
sketch15 = body.newObject("Sketcher::SketchObject", "Sketch014")
sketch15.AttachmentSupport = (doc.getObject("XZ_Plane"), [""])
sketch15.MapMode = "FlatFace"
sketch15.AttachmentOffset = App.Placement(Vector(0, 0, 45.62773), App.Rotation())
sketch15.addGeometry(Part.Circle(Vector(37, 15, 0), Vector(0, 0, 1), 1.4), False)
sketch15.addGeometry(Part.Circle(Vector(37, 5, 0), Vector(0, 0, 1), 1.4), False)
sketch15.addConstraint(Sketcher.Constraint("Equal", 0, 1))
sketch15.addConstraint(Sketcher.Constraint("Vertical", 0, 3, 1, 3))
sketch15.addConstraint(Sketcher.Constraint("Diameter", 0, Q("2.85 mm")))
sketch15.addConstraint(Sketcher.Constraint("DistanceY", -1, 1, 0, 3, Q("15 mm")))
sketch15.addConstraint(Sketcher.Constraint("DistanceY", -1, 1, 1, 3, Q("5 mm")))
sketch15.addConstraint(Sketcher.Constraint("DistanceX", -1, 1, 0, 3, Q("37.012913 mm")))
pocket10 = body.newObject("PartDesign::Pocket", "Pocket009")
pocket10.Profile = sketch15
pocket10.Type = "ThroughAll"
pocket10.Reversed = True

# Sketch on XZ plane
sketch16 = body.newObject("Sketcher::SketchObject", "Sketch015")
sketch16.AttachmentSupport = (doc.getObject("XZ_Plane"), [""])
sketch16.MapMode = "FlatFace"
sketch16.AttachmentOffset = App.Placement(Vector(0, 0, 7.12773), App.Rotation())
sketch16.addGeometry(Part.LineSegment(Vector(-17, 10, 0), Vector(-17, 20, 0)), False)
sketch16.addGeometry(Part.LineSegment(Vector(-17, 20, 0), Vector(-9, 20, 0)), False)
sketch16.addGeometry(Part.LineSegment(Vector(-9, 20, 0), Vector(-9, 10, 0)), False)
sketch16.addGeometry(Part.LineSegment(Vector(-9, 10, 0), Vector(-17, 10, 0)), False)
sketch16.addGeometry(Part.LineSegment(Vector(26, 10, 0), Vector(26, 20, 0)), False)
sketch16.addGeometry(Part.LineSegment(Vector(26, 20, 0), Vector(33, 20, 0)), False)
sketch16.addGeometry(Part.LineSegment(Vector(33, 20, 0), Vector(33, 10, 0)), False)
sketch16.addGeometry(Part.LineSegment(Vector(33, 10, 0), Vector(26, 10, 0)), False)
sketch16.addConstraint(Sketcher.Constraint("Coincident", 0, 2, 1, 1))
sketch16.addConstraint(Sketcher.Constraint("Coincident", 1, 2, 2, 1))
sketch16.addConstraint(Sketcher.Constraint("Coincident", 2, 2, 3, 1))
sketch16.addConstraint(Sketcher.Constraint("Coincident", 3, 2, 0, 1))
sketch16.addConstraint(Sketcher.Constraint("Coincident", 4, 2, 5, 1))
sketch16.addConstraint(Sketcher.Constraint("Coincident", 5, 2, 6, 1))
sketch16.addConstraint(Sketcher.Constraint("Coincident", 6, 2, 7, 1))
sketch16.addConstraint(Sketcher.Constraint("Coincident", 7, 2, 4, 1))
sketch16.addConstraint(Sketcher.Constraint("Vertical", 0))
sketch16.addConstraint(Sketcher.Constraint("Horizontal", 1))
sketch16.addConstraint(Sketcher.Constraint("Vertical", 2))
sketch16.addConstraint(Sketcher.Constraint("Horizontal", 3))
sketch16.addConstraint(Sketcher.Constraint("Vertical", 4))
sketch16.addConstraint(Sketcher.Constraint("Horizontal", 5))
sketch16.addConstraint(Sketcher.Constraint("Vertical", 6))
sketch16.addConstraint(Sketcher.Constraint("Horizontal", 7))
sketch16.addConstraint(Sketcher.Constraint("Horizontal", 1, 2, 4, 2))
sketch16.addConstraint(Sketcher.Constraint("Horizontal", 3, 2, 6, 2))
sketch16.addConstraint(Sketcher.Constraint("Equal", 3, 5))
sketch16.addConstraint(Sketcher.Constraint("DistanceY", 0, 1, 0, 2, Q("10 mm")))
sketch16.addConstraint(Sketcher.Constraint("DistanceX", 1, 1, 1, 2, Q("7.5 mm")))
sketch16.addConstraint(Sketcher.Constraint("DistanceY", -1, 1, 0, 2, Q("20 mm")))
sketch16.addConstraint(Sketcher.Constraint("DistanceX", 1, 2, 4, 2, Q("35 mm")))
sketch16.addConstraint(Sketcher.Constraint("DistanceX", 0, 2, -1, 1, Q("16.737087 mm")))
pad6 = body.newObject("PartDesign::Pad", "Pad005")
pad6.Profile = sketch16
pad6.Length = 9.5
pad6.Reversed = True
doc.recompute()

fillet7 = body.newObject("PartDesign::Fillet", "Fillet006")
fillet7.Base = (pad6, edges_at(pad6, [(-9.237, 2.372, 15)]))
fillet7.Radius = 5
doc.recompute()

fillet8 = body.newObject("PartDesign::Fillet", "Fillet007")
fillet8.Base = (fillet7, edges_at(fillet7, [(25.763, 2.372, 15)]))
fillet8.Radius = 5
doc.recompute()

fillet9 = body.newObject("PartDesign::Fillet", "Fillet008")
fillet9.Base = (fillet8, edges_at(fillet8, [(33.263, 7.872, 5)]))
fillet9.Radius = 5
doc.recompute()

fillet10 = body.newObject("PartDesign::Fillet", "Fillet009")
fillet10.Base = (fillet9, edges_at(fillet9, [(33.263, 7.872, 25)]))
fillet10.Radius = 5
doc.recompute()

fillet11 = body.newObject("PartDesign::Fillet", "Fillet010")
fillet11.Base = (fillet10, edges_at(fillet10, [(19.499, 17.872, 2.75)]))
fillet11.Radius = 5
doc.recompute()

fillet12 = body.newObject("PartDesign::Fillet", "Fillet011")
fillet12.Base = (fillet11, edges_at(fillet11, [(19.499, 17.872, 9.25)]))
fillet12.Radius = 5
doc.recompute()

fillet13 = body.newObject("PartDesign::Fillet", "Fillet012")
fillet13.Base = (fillet12, edges_at(fillet12, [(19.499, 17.872, 27.25)]))
fillet13.Radius = 5
doc.recompute()

fillet14 = body.newObject("PartDesign::Fillet", "Fillet013")
fillet14.Base = (fillet13, edges_at(fillet13, [(19.499, 17.872, 20.75)]))
fillet14.Radius = 5

# Sketch on XZ plane
sketch17 = body.newObject("Sketcher::SketchObject", "Sketch016")
sketch17.AttachmentSupport = (doc.getObject("XZ_Plane"), [""])
sketch17.MapMode = "FlatFace"
sketch17.AttachmentOffset = App.Placement(Vector(0, 0, 42.12773), App.Rotation())
sketch17.addGeometry(Part.Circle(Vector(-20.5, 11, 0), Vector(0, 0, 1), 1.4), False)
sketch17.addConstraint(Sketcher.Constraint("Diameter", 0, Q("2.75 mm")))
sketch17.addConstraint(Sketcher.Constraint("DistanceY", -1, 1, 0, 3, Q("11 mm")))
sketch17.addConstraint(Sketcher.Constraint("DistanceX", 0, 3, -1, 1, Q("20.537087 mm")))
pocket11 = body.newObject("PartDesign::Pocket", "Pocket010")
pocket11.Profile = sketch17
pocket11.Length = 10
pocket11.Reversed = True

# Sketch on XY plane
sketch18 = body.newObject("Sketcher::SketchObject", "Sketch017")
sketch18.AttachmentSupport = (doc.getObject("XY_Plane"), [""])
sketch18.MapMode = "FlatFace"
sketch18.AttachmentOffset = App.Placement(Vector(0, 0, 2), App.Rotation())
sketch18.addGeometry(Part.Circle(Vector(7, -18, 0), Vector(0, 0, 1), 6), False)
sketch18.addConstraint(Sketcher.Constraint("Diameter", 0, Q("11 mm")))
sketch18.addConstraint(Sketcher.Constraint("DistanceX", -1, 1, 0, 3, Q("6.889118 mm")))
sketch18.addConstraint(Sketcher.Constraint("DistanceY", 0, 3, -1, 1, Q("18.12773 mm")))
pocket12 = body.newObject("PartDesign::Pocket", "Pocket011")
pocket12.Profile = sketch18
pocket12.Length = 10

# Sketch on XY plane
sketch19 = body.newObject("Sketcher::SketchObject", "Sketch018")
sketch19.AttachmentSupport = (doc.getObject("XY_Plane"), [""])
sketch19.MapMode = "FlatFace"
sketch19.AttachmentOffset = App.Placement(Vector(0, 0, 10), App.Rotation())
sketch19.addGeometry(Part.LineSegment(Vector(-2.1, 5.9, 0), Vector(-6.1, 12.9, 0)), False)
sketch19.addGeometry(Part.LineSegment(Vector(-6.1, 12.9, 0), Vector(-6.1, 5.9, 0)), False)
sketch19.addGeometry(Part.LineSegment(Vector(-6.1, 5.9, 0), Vector(-2.1, 5.9, 0)), False)
sketch19.addGeometry(Part.LineSegment(Vector(24.4, 13.4, 0), Vector(18.9, 5.9, 0)), False)
sketch19.addGeometry(Part.LineSegment(Vector(18.9, 5.9, 0), Vector(24.4, 5.9, 0)), False)
sketch19.addGeometry(Part.LineSegment(Vector(24.4, 5.9, 0), Vector(24.4, 13.4, 0)), False)
sketch19.addConstraint(Sketcher.Constraint("Coincident", 0, 2, 1, 1))
sketch19.addConstraint(Sketcher.Constraint("Coincident", 1, 2, 2, 1))
sketch19.addConstraint(Sketcher.Constraint("Coincident", 2, 2, 0, 1))
sketch19.addConstraint(Sketcher.Constraint("Coincident", 3, 2, 4, 1))
sketch19.addConstraint(Sketcher.Constraint("Coincident", 4, 2, 5, 1))
sketch19.addConstraint(Sketcher.Constraint("Coincident", 5, 2, 3, 1))
sketch19.addConstraint(Sketcher.Constraint("Vertical", 1))
sketch19.addConstraint(Sketcher.Constraint("Horizontal", 2))
sketch19.addConstraint(Sketcher.Constraint("Horizontal", 4))
sketch19.addConstraint(Sketcher.Constraint("Vertical", 5))
sketch19.addConstraint(Sketcher.Constraint("Horizontal", 2, 2, 3, 2))
sketch19.addConstraint(Sketcher.Constraint("DistanceX", 2, 1, 2, 2, Q("4 mm")))
sketch19.addConstraint(Sketcher.Constraint("DistanceY", 1, 2, 1, 1, Q("7 mm")))
sketch19.addConstraint(Sketcher.Constraint("DistanceX", 4, 1, 4, 2, Q("5.5 mm")))
sketch19.addConstraint(Sketcher.Constraint("DistanceY", 5, 1, 5, 2, Q("7.5 mm")))
sketch19.addConstraint(Sketcher.Constraint("DistanceX", 2, 2, 3, 2, Q("20.948701 mm")))
sketch19.addConstraint(Sketcher.Constraint("DistanceY", -1, 1, 0, 2, Q("12.87227 mm")))
sketch19.addConstraint(Sketcher.Constraint("DistanceX", 0, 2, -1, 1, Q("6.084974 mm")))
pocket13 = body.newObject("PartDesign::Pocket", "Pocket012")
pocket13.Profile = sketch19
pocket13.Type = "TwoLengths"
pocket13.Length = 14
pocket13.Length2 = 3
pocket13.Reversed = True

doc.recompute()
